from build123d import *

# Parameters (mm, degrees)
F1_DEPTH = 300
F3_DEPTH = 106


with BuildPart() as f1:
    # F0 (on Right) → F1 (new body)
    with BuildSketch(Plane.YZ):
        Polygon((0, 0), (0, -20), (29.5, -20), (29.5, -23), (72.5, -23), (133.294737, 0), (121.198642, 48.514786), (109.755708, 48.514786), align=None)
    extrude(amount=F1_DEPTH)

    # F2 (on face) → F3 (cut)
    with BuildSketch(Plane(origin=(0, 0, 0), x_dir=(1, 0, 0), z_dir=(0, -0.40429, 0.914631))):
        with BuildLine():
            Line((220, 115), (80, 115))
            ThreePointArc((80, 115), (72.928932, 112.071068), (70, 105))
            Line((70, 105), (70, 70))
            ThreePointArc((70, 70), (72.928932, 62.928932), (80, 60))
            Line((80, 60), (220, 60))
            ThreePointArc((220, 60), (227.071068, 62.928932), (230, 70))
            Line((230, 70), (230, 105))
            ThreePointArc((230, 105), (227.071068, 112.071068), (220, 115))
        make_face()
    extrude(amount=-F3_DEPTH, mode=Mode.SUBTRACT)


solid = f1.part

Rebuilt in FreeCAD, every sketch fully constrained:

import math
import FreeCAD as App
import Part
import Sketcher

V = App.Vector
Q = App.Units.Quantity


def add_polygon(sketch, points):
    """Adds a closed chain of lines whose ends are joined by coincident constraints."""
    first, n = sketch.GeometryCount, len(points)
    for a, b in zip(points, points[1:] + points[:1]):
        sketch.addGeometry(Part.LineSegment(App.Vector(*a, 0), App.Vector(*b, 0)), False)
    for i in range(n):
        sketch.addConstraint(Sketcher.Constraint("Coincident", first + i, 2, first + (i + 1) % n, 1))

doc = App.newDocument("Part")
body = doc.addObject("PartDesign::Body", "Body")

sketch1 = doc.addObject("Sketcher::SketchObject", "Sketch")
body.addObject(sketch1)
sketch1.AttachmentSupport = (doc.YZ_Plane, [""])
sketch1.MapMode = "FlatFace"
add_polygon(sketch1, [(0, 0), (0, -20), (29.5, -20), (29.5, -23), (72.5, -23), (133.294737, 0), (121.198642, 48.514786), (109.755708, 48.514786)])
sketch1.addConstraint([
    Sketcher.Constraint("Vertical", 0),
    Sketcher.Constraint("Horizontal", 1),
    Sketcher.Constraint("Vertical", 2),
    Sketcher.Constraint("Horizontal", 3),
    Sketcher.Constraint("Horizontal", 6),
    Sketcher.Constraint("Coincident", 7, 2, -1, 1),
    Sketcher.Constraint("PointOnObject", 4, 2, -1),
    Sketcher.Constraint("DistanceX", 3, 1, 3, 2, 43.0),
    Sketcher.Constraint("DistanceY", 0, 2, 0, 1, 20.0),
    Sketcher.Constraint("DistanceY", 2, 2, 2, 1, 3.0),
    Sketcher.Constraint("Angle", 5, Q("104 deg")),
    Sketcher.Constraint("Distance", 4, 65.0),
    Sketcher.Constraint("Distance", 5, 50.0),
    Sketcher.Constraint("Distance", 7, 120.0),
    Sketcher.Constraint("DistanceX", 1, 1, 1, 2, 29.5),
])
pad1 = doc.addObject("PartDesign::Pad", "Pad")
body.addObject(pad1)
pad1.Profile = sketch1
pad1.Length = 300

sketch2 = doc.addObject("Sketcher::SketchObject", "Sketch001")
body.addObject(sketch2)
sketch2.Placement = App.Placement(V(0, 0, 0), App.Rotation(V(1, 0, 0), V(0, 0.914630876, 0.404289945), V(0, -0.404289945, 0.914630876), "ZXY"))
sketch2.addGeometry([
    Part.LineSegment(V(220, 115, 0), V(80, 115, 0)),
    Part.ArcOfCircle(Part.Circle(V(79.999999, 105.000001, 0), V(0, 0, 1), 9.999999), math.radians(89.999996), math.radians(180.000004)),
    Part.LineSegment(V(70, 105, 0), V(70, 70, 0)),
    Part.ArcOfCircle(Part.Circle(V(79.999999, 69.999999, 0), V(0, 0, 1), 9.999999), math.radians(179.999996), math.radians(270.000004)),
    Part.LineSegment(V(80, 60, 0), V(220, 60, 0)),
    Part.ArcOfCircle(Part.Circle(V(220.000001, 69.999999, 0), V(0, 0, 1), 9.999999), math.radians(-90.000004), math.radians(0.000004)),
    Part.LineSegment(V(230, 70, 0), V(230, 105, 0)),
    Part.ArcOfCircle(Part.Circle(V(220.000001, 105.000001, 0), V(0, 0, 1), 9.999999), math.radians(-0.000004), math.radians(90.000004)),
], False)
sketch2.addConstraint([
    Sketcher.Constraint("Tangent", 0, 2, 1, 1),
    Sketcher.Constraint("Tangent", 1, 2, 2, 1),
    Sketcher.Constraint("Tangent", 2, 2, 3, 1),
    Sketcher.Constraint("Tangent", 3, 2, 4, 1),
    Sketcher.Constraint("Tangent", 4, 2, 5, 1),
    Sketcher.Constraint("Tangent", 5, 2, 6, 1),
    Sketcher.Constraint("Tangent", 6, 2, 7, 1),
    Sketcher.Constraint("Tangent", 7, 2, 0, 1),
    Sketcher.Constraint("Horizontal", 0),
    Sketcher.Constraint("Vertical", 2),
    Sketcher.Constraint("Horizontal", 4),
    Sketcher.Constraint("Vertical", 6),
    Sketcher.Constraint("Equal", 1, 3),
    Sketcher.Constraint("Equal", 3, 5),
    Sketcher.Constraint("Equal", 5, 7),
    Sketcher.Constraint("Radius", 1, 9.999999),
    Sketcher.Constraint("DistanceX", 0, 2, 0, 1, 140.0),
    Sketcher.Constraint("DistanceY", 2, 2, 2, 1, 35.0),
    Sketcher.Constraint("DistanceX", -1, 1, 1, 3, 79.999999),
    Sketcher.Constraint("DistanceY", -1, 1, 1, 3, 105.000001),
])
pocket1 = doc.addObject("PartDesign::Pocket", "Pocket")
body.addObject(pocket1)
pocket1.Profile = sketch2
pocket1.Length = 106

doc.recompute()
